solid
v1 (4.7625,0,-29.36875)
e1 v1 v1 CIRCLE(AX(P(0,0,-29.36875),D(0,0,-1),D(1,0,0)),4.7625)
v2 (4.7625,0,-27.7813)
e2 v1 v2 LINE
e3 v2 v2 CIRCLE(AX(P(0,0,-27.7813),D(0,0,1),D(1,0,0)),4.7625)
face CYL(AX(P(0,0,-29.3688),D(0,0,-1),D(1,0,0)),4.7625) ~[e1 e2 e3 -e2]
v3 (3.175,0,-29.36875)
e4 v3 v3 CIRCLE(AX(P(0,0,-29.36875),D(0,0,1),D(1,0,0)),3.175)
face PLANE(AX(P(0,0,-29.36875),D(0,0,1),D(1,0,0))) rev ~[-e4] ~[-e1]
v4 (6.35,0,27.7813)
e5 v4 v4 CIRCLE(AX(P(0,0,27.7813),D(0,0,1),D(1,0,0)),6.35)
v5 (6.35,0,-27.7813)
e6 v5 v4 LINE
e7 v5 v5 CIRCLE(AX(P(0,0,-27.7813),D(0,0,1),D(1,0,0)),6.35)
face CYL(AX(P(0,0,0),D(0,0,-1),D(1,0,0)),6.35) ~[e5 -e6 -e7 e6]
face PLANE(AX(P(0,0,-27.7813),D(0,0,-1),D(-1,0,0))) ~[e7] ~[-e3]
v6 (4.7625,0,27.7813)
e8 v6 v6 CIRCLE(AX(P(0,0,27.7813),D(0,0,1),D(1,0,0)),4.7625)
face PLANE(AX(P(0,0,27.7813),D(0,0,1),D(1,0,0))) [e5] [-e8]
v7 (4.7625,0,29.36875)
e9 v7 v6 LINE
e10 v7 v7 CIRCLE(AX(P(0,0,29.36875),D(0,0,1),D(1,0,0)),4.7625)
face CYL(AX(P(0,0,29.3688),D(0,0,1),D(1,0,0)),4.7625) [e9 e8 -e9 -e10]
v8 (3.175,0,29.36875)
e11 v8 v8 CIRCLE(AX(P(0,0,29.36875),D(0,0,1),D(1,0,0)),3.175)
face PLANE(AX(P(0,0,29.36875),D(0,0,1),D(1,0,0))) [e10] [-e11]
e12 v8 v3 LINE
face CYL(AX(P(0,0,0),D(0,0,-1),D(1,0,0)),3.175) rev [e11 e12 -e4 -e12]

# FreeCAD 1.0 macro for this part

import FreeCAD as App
import Part
import Sketcher

V = App.Vector
Q = App.Units.Quantity

doc = App.newDocument("Part")
body = doc.addObject("PartDesign::Body", "Body")

# Sketch on XY plane
sketch1 = doc.addObject("Sketcher::SketchObject", "Sketch")
body.addObject(sketch1)
sketch1.AttachmentSupport = (doc.XY_Plane, [""])
sketch1.MapMode = "FlatFace"
sketch1.addGeometry(Part.Circle(V(0, 0, 0), V(0, 0, 1), 6.3), False)
sketch1.addGeometry(Part.Circle(V(0, 0, 0), V(0, 0, 1), 3.2), False)
sketch1.addConstraint(Sketcher.Constraint("Coincident", 0, 3, -1, 1))
sketch1.addConstraint(Sketcher.Constraint("Coincident", 1, 3, -1, 1))
sketch1.addConstraint(Sketcher.Constraint("Diameter", 0, Q("0.5 in")))
sketch1.addConstraint(Sketcher.Constraint("Diameter", 1, Q("0.25 in")))
pad1 = doc.addObject("PartDesign::Pad", "Pad")
body.addObject(pad1)
pad1.Profile = sketch1
pad1.Length = Q("2.3125 in")
pad1.Midplane = True

# Sketch on XY plane
sketch2 = doc.addObject("Sketcher::SketchObject", "Sketch001")
body.addObject(sketch2)
sketch2.AttachmentSupport = (doc.XY_Plane, [""])
sketch2.MapMode = "FlatFace"
sketch2.AttachmentOffset = App.Placement(V(0, 0, 1.156252 * 25.4), App.Rotation())
sketch2.addGeometry(Part.Circle(V(0, 0, 0), V(0, 0, 1), 6.3), False)
sketch2.addGeometry(Part.Circle(V(0, 0, 0), V(0, 0, 1), 4.8), False)
sketch2.addConstraint(Sketcher.Constraint("Coincident", 0, 3, -1, 1))
sketch2.addConstraint(Sketcher.Constraint("Coincident", 1, 3, -1, 1))
sketch2.addConstraint(Sketcher.Constraint("Diameter", 1, Q("0.375 in")))
sketch2.addConstraint(Sketcher.Constraint("Diameter", 0, Q("0.5 in")))
pocket1 = doc.addObject("PartDesign::Pocket", "Pocket")
body.addObject(pocket1)
pocket1.Profile = sketch2
pocket1.Length = Q("0.0625 in")
doc.recompute()

mirrored = doc.addObject("PartDesign::Mirrored", "Mirrored")
body.addObject(mirrored)
mirrored.Originals = [pocket1]
mirrored.MirrorPlane = (doc.XY_Plane, [""])
body.Tip = mirrored

doc.recompute()
